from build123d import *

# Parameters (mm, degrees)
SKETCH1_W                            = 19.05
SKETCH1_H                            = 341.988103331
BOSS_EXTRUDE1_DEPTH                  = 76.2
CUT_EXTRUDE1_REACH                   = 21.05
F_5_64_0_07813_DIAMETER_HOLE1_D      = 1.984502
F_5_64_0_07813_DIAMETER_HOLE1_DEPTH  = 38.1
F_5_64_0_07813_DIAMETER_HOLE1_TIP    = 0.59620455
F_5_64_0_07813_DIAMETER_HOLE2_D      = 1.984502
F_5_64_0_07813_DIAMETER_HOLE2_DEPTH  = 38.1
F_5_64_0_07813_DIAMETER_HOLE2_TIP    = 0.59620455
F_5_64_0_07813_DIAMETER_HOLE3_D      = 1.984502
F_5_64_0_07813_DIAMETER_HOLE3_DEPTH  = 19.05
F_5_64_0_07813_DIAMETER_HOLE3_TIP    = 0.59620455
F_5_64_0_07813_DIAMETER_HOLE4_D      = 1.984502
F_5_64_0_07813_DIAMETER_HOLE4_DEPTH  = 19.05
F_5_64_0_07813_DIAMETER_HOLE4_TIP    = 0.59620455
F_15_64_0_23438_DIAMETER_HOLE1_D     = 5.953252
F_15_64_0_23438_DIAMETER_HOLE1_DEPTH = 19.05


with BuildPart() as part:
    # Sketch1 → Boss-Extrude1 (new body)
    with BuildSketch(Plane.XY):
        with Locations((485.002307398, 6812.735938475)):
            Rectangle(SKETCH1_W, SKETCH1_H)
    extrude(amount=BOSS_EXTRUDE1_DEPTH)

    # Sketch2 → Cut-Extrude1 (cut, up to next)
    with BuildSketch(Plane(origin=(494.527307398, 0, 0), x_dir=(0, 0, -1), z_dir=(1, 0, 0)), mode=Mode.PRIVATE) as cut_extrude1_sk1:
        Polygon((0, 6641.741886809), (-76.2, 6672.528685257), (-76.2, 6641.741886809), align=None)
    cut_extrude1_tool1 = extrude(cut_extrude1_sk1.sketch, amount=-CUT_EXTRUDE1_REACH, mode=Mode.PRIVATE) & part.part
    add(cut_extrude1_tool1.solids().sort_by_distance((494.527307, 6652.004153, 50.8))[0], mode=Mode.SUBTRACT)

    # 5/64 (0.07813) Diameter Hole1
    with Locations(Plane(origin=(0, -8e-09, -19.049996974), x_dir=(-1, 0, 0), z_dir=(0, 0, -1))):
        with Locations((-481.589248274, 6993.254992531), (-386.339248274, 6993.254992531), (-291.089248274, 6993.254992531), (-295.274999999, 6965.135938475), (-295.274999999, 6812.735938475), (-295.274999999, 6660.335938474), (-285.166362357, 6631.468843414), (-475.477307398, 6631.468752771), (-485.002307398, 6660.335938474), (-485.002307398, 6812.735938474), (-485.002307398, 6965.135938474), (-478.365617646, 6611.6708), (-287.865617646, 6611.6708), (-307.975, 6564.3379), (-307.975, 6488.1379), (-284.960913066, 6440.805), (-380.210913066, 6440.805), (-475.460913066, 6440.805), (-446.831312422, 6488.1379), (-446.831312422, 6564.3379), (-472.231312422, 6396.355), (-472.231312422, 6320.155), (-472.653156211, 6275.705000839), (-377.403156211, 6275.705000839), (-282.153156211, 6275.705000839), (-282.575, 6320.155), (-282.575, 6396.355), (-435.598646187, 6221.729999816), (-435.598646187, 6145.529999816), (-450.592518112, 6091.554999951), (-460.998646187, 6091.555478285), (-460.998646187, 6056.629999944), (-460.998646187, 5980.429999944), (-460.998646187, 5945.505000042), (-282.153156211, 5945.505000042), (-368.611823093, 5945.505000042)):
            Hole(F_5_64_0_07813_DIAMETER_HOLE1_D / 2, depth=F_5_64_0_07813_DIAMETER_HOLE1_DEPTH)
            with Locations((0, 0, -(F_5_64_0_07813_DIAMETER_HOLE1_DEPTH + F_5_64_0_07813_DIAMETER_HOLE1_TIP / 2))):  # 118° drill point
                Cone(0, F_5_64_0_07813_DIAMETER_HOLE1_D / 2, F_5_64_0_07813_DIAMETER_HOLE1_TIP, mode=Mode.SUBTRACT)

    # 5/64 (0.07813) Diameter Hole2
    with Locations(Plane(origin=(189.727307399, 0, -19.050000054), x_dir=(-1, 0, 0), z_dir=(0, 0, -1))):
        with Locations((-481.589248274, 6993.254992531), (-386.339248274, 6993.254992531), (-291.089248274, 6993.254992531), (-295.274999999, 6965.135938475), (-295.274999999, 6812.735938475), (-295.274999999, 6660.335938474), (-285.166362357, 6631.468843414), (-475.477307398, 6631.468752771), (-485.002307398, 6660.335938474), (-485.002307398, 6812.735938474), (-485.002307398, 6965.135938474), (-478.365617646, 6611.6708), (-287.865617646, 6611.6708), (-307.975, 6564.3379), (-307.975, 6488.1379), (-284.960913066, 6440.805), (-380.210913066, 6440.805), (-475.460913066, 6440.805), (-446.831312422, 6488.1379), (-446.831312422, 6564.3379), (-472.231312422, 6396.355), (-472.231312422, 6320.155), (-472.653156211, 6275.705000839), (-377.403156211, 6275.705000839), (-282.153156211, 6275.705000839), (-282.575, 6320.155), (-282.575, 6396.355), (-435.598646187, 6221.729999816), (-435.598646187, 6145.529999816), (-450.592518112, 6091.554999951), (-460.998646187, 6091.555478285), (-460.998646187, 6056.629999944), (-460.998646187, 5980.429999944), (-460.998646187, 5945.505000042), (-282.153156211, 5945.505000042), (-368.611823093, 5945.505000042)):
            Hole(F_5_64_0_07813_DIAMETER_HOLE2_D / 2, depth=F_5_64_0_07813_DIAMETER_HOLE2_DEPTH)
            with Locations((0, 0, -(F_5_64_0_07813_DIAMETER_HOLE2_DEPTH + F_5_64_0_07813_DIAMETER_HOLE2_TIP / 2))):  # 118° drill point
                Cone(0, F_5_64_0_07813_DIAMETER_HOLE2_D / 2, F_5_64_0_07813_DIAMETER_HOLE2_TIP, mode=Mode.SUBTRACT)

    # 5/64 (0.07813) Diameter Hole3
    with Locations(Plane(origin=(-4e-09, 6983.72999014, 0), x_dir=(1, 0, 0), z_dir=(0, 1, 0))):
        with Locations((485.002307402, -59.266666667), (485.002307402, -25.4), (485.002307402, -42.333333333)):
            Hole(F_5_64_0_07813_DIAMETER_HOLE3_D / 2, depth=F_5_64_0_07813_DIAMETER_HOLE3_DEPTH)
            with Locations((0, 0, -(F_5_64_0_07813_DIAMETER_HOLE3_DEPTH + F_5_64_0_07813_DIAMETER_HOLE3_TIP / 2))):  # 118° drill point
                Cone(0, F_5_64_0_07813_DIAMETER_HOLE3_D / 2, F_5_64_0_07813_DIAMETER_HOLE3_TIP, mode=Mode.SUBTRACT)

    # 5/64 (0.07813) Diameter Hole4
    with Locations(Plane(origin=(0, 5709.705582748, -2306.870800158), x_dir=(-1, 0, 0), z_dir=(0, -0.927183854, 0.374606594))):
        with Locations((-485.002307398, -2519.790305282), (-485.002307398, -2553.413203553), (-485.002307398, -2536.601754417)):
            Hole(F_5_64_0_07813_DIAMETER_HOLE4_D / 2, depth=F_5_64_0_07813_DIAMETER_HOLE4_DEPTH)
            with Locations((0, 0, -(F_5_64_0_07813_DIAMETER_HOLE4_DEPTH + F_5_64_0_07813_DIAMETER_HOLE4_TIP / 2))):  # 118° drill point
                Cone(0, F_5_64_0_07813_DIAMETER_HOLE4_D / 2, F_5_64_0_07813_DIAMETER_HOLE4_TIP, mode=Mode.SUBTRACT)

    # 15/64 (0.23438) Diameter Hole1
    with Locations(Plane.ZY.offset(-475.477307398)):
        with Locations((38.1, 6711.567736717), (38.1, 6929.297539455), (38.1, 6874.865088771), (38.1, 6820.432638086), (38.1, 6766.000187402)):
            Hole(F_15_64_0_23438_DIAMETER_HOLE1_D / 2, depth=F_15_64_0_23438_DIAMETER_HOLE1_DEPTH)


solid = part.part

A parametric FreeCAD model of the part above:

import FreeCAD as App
import Part
import Sketcher
Q = App.Units.Quantity

doc = App.newDocument("Part")
params = doc.addObject("Spreadsheet::Sheet", "Params")
for row, (alias, value) in enumerate([
    ("sketch1_width", "0.75 in"),
    ("pad1_length", "3 in"),
    ("sketch2_height", "3 in"),
    ("hole_diameter", "1.984502 mm"),
    ("hole_depth", "1.5 in"),
    ("hole2_diameter", "1.984502 mm"),
    ("hole2_depth", "1.5 in"),
    ("hole3_diameter", "1.984502 mm"),
    ("hole3_depth", "0.75 in"),
    ("hole4_diameter", "1.984502 mm"),
    ("hole4_depth", "0.75 in"),
    ("hole5_diameter", "5.953252 mm"),
    ("hole5_depth", "0.75 in"),
], start=1):
    params.set(f"A{row}", alias)
    params.set(f"B{row}", "=" + value)
    params.setAlias(f"B{row}", alias)

body = doc.addObject("PartDesign::Body", "Body")

sketch1 = body.newObject("Sketcher::SketchObject", "Sketch")
sketch1.AttachmentSupport = (doc.getObject("XY_Plane"), [""])
sketch1.MapMode = "FlatFace"
sketch1.addGeometry(Part.LineSegment(App.Vector(475, 6984, 0), App.Vector(475, 6642, 0)), False)
sketch1.addGeometry(Part.LineSegment(App.Vector(475, 6642, 0), App.Vector(495, 6642, 0)), False)
sketch1.addGeometry(Part.LineSegment(App.Vector(495, 6642, 0), App.Vector(495, 6984, 0)), False)
sketch1.addGeometry(Part.LineSegment(App.Vector(495, 6984, 0), App.Vector(475, 6984, 0)), False)
sketch1.addConstraint(Sketcher.Constraint("Coincident", 0, 2, 1, 1))
sketch1.addConstraint(Sketcher.Constraint("Coincident", 1, 2, 2, 1))
sketch1.addConstraint(Sketcher.Constraint("Coincident", 2, 2, 3, 1))
sketch1.addConstraint(Sketcher.Constraint("Coincident", 3, 2, 0, 1))
sketch1.addConstraint(Sketcher.Constraint("Vertical", 0))
sketch1.addConstraint(Sketcher.Constraint("Horizontal", 1))
sketch1.addConstraint(Sketcher.Constraint("Vertical", 2))
sketch1.addConstraint(Sketcher.Constraint("Horizontal", 3))
sketch1.addConstraint(Sketcher.Constraint("DistanceX", 1, 1, 1, 2, Q("0.75 in")))
sketch1.addConstraint(Sketcher.Constraint("DistanceY", 0, 2, 0, 1, 341.988103))
sketch1.addConstraint(Sketcher.Constraint("DistanceY", -1, 1, 2, 2, 6983.72999))
sketch1.addConstraint(Sketcher.Constraint("DistanceX", -1, 1, 0, 2, 475.477307))
sketch1.setExpression("Constraints[8]", "Params.sketch1_width")
pad1 = body.newObject("PartDesign::Pad", "Pad")
pad1.Profile = sketch1
pad1.setExpression("Length", "Params.pad1_length")

sketch2 = body.newObject("Sketcher::SketchObject", "Sketch001")
sketch2.AttachmentSupport = (doc.getObject("YZ_Plane"), [""])
sketch2.MapMode = "FlatFace"
sketch2.AttachmentOffset = App.Placement(App.Vector(0, 0, 494.527307), App.Rotation())
sketch2.addGeometry(Part.LineSegment(App.Vector(6642, 0, 0), App.Vector(6673, 76, 0)), False)
sketch2.addGeometry(Part.LineSegment(App.Vector(6673, 76, 0), App.Vector(6642, 76, 0)), False)
sketch2.addGeometry(Part.LineSegment(App.Vector(6642, 76, 0), App.Vector(6642, 0, 0)), False)
sketch2.addConstraint(Sketcher.Constraint("Coincident", 0, 2, 1, 1))
sketch2.addConstraint(Sketcher.Constraint("Coincident", 1, 2, 2, 1))
sketch2.addConstraint(Sketcher.Constraint("Coincident", 2, 2, 0, 1))
sketch2.addConstraint(Sketcher.Constraint("Horizontal", 1))
sketch2.addConstraint(Sketcher.Constraint("Vertical", 2))
sketch2.addConstraint(Sketcher.Constraint("PointOnObject", 2, 2, -1))
sketch2.addConstraint(Sketcher.Constraint("DistanceY", 2, 2, 2, 1, Q("3 in")))
sketch2.addConstraint(Sketcher.Constraint("Angle", 0, Q("68 deg")))
sketch2.addConstraint(Sketcher.Constraint("DistanceX", -1, 1, 0, 2, 6672.528685))
sketch2.setExpression("Constraints[6]", "Params.sketch2_height")
pocket1 = body.newObject("PartDesign::Pocket", "Pocket")
pocket1.Profile = sketch2
pocket1.Type = "UpToFirst"

sketch3 = body.newObject("Sketcher::SketchObject", "Sketch002")
sketch3.AttachmentSupport = (doc.getObject("XY_Plane"), [""])
sketch3.MapMode = "FlatFace"
sketch3.AttachmentOffset = App.Placement(App.Vector(0, 0, -0.7499999 * 25.4), App.Rotation())
sketch3.addGeometry(Part.Circle(App.Vector(481.6, 6993.3, 0), App.Vector(0, 0, 1), 1), False)
sketch3.addGeometry(Part.Circle(App.Vector(386.3, 6993.3, 0), App.Vector(0, 0, 1), 1), False)
sketch3.addGeometry(Part.Circle(App.Vector(291.1, 6993.3, 0), App.Vector(0, 0, 1), 1), False)
sketch3.addGeometry(Part.Circle(App.Vector(295.3, 6965.1, 0), App.Vector(0, 0, 1), 1), False)
sketch3.addGeometry(Part.Circle(App.Vector(295.3, 6812.7, 0), App.Vector(0, 0, 1), 1), False)
sketch3.addGeometry(Part.Circle(App.Vector(295.3, 6660.3, 0), App.Vector(0, 0, 1), 1), False)
sketch3.addGeometry(Part.Circle(App.Vector(285.2, 6631.5, 0), App.Vector(0, 0, 1), 1), False)
sketch3.addGeometry(Part.Circle(App.Vector(475.5, 6631.5, 0), App.Vector(0, 0, 1), 1), False)
sketch3.addGeometry(Part.Circle(App.Vector(485, 6660.3, 0), App.Vector(0, 0, 1), 1), False)
sketch3.addGeometry(Part.Circle(App.Vector(485, 6812.7, 0), App.Vector(0, 0, 1), 1), False)
sketch3.addGeometry(Part.Circle(App.Vector(485, 6965.1, 0), App.Vector(0, 0, 1), 1), False)
sketch3.addGeometry(Part.Circle(App.Vector(478.4, 6611.7, 0), App.Vector(0, 0, 1), 1), False)
sketch3.addGeometry(Part.Circle(App.Vector(287.9, 6611.7, 0), App.Vector(0, 0, 1), 1), False)
sketch3.addGeometry(Part.Circle(App.Vector(308, 6564.3, 0), App.Vector(0, 0, 1), 1), False)
sketch3.addGeometry(Part.Circle(App.Vector(308, 6488.1, 0), App.Vector(0, 0, 1), 1), False)
sketch3.addGeometry(Part.Circle(App.Vector(285, 6440.8, 0), App.Vector(0, 0, 1), 1), False)
sketch3.addGeometry(Part.Circle(App.Vector(380.2, 6440.8, 0), App.Vector(0, 0, 1), 1), False)
sketch3.addGeometry(Part.Circle(App.Vector(475.5, 6440.8, 0), App.Vector(0, 0, 1), 1), False)
sketch3.addGeometry(Part.Circle(App.Vector(446.8, 6488.1, 0), App.Vector(0, 0, 1), 1), False)
sketch3.addGeometry(Part.Circle(App.Vector(446.8, 6564.3, 0), App.Vector(0, 0, 1), 1), False)
sketch3.addGeometry(Part.Circle(App.Vector(472.2, 6396.4, 0), App.Vector(0, 0, 1), 1), False)
sketch3.addGeometry(Part.Circle(App.Vector(472.2, 6320.2, 0), App.Vector(0, 0, 1), 1), False)
sketch3.addGeometry(Part.Circle(App.Vector(472.7, 6275.7, 0), App.Vector(0, 0, 1), 1), False)
sketch3.addGeometry(Part.Circle(App.Vector(377.4, 6275.7, 0), App.Vector(0, 0, 1), 1), False)
sketch3.addGeometry(Part.Circle(App.Vector(282.2, 6275.7, 0), App.Vector(0, 0, 1), 1), False)
sketch3.addGeometry(Part.Circle(App.Vector(282.6, 6320.2, 0), App.Vector(0, 0, 1), 1), False)
sketch3.addGeometry(Part.Circle(App.Vector(282.6, 6396.4, 0), App.Vector(0, 0, 1), 1), False)
sketch3.addGeometry(Part.Circle(App.Vector(435.6, 6221.7, 0), App.Vector(0, 0, 1), 1), False)
sketch3.addGeometry(Part.Circle(App.Vector(435.6, 6145.5, 0), App.Vector(0, 0, 1), 1), False)
sketch3.addGeometry(Part.Circle(App.Vector(450.6, 6091.6, 0), App.Vector(0, 0, 1), 1), False)
sketch3.addGeometry(Part.Circle(App.Vector(461, 6091.6, 0), App.Vector(0, 0, 1), 1), False)
sketch3.addGeometry(Part.Circle(App.Vector(461, 6056.6, 0), App.Vector(0, 0, 1), 1), False)
sketch3.addGeometry(Part.Circle(App.Vector(461, 5980.4, 0), App.Vector(0, 0, 1), 1), False)
sketch3.addGeometry(Part.Circle(App.Vector(461, 5945.5, 0), App.Vector(0, 0, 1), 1), False)
sketch3.addGeometry(Part.Circle(App.Vector(282.2, 5945.5, 0), App.Vector(0, 0, 1), 1), False)
sketch3.addGeometry(Part.Circle(App.Vector(368.6, 5945.5, 0), App.Vector(0, 0, 1), 1), False)
sketch3.addConstraint(Sketcher.Constraint("Equal", 0, 1))
sketch3.addConstraint(Sketcher.Constraint("Equal", 1, 2))
sketch3.addConstraint(Sketcher.Constraint("Equal", 2, 3))
sketch3.addConstraint(Sketcher.Constraint("Equal", 3, 4))
sketch3.addConstraint(Sketcher.Constraint("Equal", 4, 5))
sketch3.addConstraint(Sketcher.Constraint("Equal", 5, 6))
sketch3.addConstraint(Sketcher.Constraint("Equal", 6, 7))
sketch3.addConstraint(Sketcher.Constraint("Equal", 7, 8))
sketch3.addConstraint(Sketcher.Constraint("Equal", 8, 9))
sketch3.addConstraint(Sketcher.Constraint("Equal", 9, 10))
sketch3.addConstraint(Sketcher.Constraint("Equal", 10, 11))
sketch3.addConstraint(Sketcher.Constraint("Equal", 11, 12))
sketch3.addConstraint(Sketcher.Constraint("Equal", 12, 13))
sketch3.addConstraint(Sketcher.Constraint("Equal", 13, 14))
sketch3.addConstraint(Sketcher.Constraint("Equal", 14, 15))
sketch3.addConstraint(Sketcher.Constraint("Equal", 15, 16))
sketch3.addConstraint(Sketcher.Constraint("Equal", 16, 17))
sketch3.addConstraint(Sketcher.Constraint("Equal", 17, 18))
sketch3.addConstraint(Sketcher.Constraint("Equal", 18, 19))
sketch3.addConstraint(Sketcher.Constraint("Equal", 19, 20))
sketch3.addConstraint(Sketcher.Constraint("Equal", 20, 21))
sketch3.addConstraint(Sketcher.Constraint("Equal", 21, 22))
sketch3.addConstraint(Sketcher.Constraint("Equal", 22, 23))
sketch3.addConstraint(Sketcher.Constraint("Equal", 23, 24))
sketch3.addConstraint(Sketcher.Constraint("Equal", 24, 25))
sketch3.addConstraint(Sketcher.Constraint("Equal", 25, 26))
sketch3.addConstraint(Sketcher.Constraint("Equal", 26, 27))
sketch3.addConstraint(Sketcher.Constraint("Equal", 27, 28))
sketch3.addConstraint(Sketcher.Constraint("Equal", 28, 29))
sketch3.addConstraint(Sketcher.Constraint("Equal", 29, 30))
sketch3.addConstraint(Sketcher.Constraint("Equal", 30, 31))
sketch3.addConstraint(Sketcher.Constraint("Equal", 31, 32))
sketch3.addConstraint(Sketcher.Constraint("Equal", 32, 33))
sketch3.addConstraint(Sketcher.Constraint("Equal", 33, 34))
sketch3.addConstraint(Sketcher.Constraint("Equal", 34, 35))
sketch3.addConstraint(Sketcher.Constraint("Horizontal", 0, 3, 1, 3))
sketch3.addConstraint(Sketcher.Constraint("Horizontal", 1, 3, 2, 3))
sketch3.addConstraint(Sketcher.Constraint("Horizontal", 5, 3, 8, 3))
sketch3.addConstraint(Sketcher.Constraint("Horizontal", 4, 3, 9, 3))
sketch3.addConstraint(Sketcher.Constraint("Horizontal", 3, 3, 10, 3))
sketch3.addConstraint(Sketcher.Constraint("Horizontal", 11, 3, 12, 3))
sketch3.addConstraint(Sketcher.Constraint("Horizontal", 15, 3, 16, 3))
sketch3.addConstraint(Sketcher.Constraint("Horizontal", 16, 3, 17, 3))
sketch3.addConstraint(Sketcher.Constraint("Horizontal", 14, 3, 18, 3))
sketch3.addConstraint(Sketcher.Constraint("Horizontal", 13, 3, 19, 3))
sketch3.addConstraint(Sketcher.Constraint("Horizontal", 22, 3, 23, 3))
sketch3.addConstraint(Sketcher.Constraint("Horizontal", 23, 3, 24, 3))
sketch3.addConstraint(Sketcher.Constraint("Horizontal", 21, 3, 25, 3))
sketch3.addConstraint(Sketcher.Constraint("Horizontal", 20, 3, 26, 3))
sketch3.addConstraint(Sketcher.Constraint("Horizontal", 33, 3, 34, 3))
sketch3.addConstraint(Sketcher.Constraint("Horizontal", 34, 3, 35, 3))
sketch3.addConstraint(Sketcher.Constraint("Vertical", 3, 3, 4, 3))
sketch3.addConstraint(Sketcher.Constraint("Vertical", 4, 3, 5, 3))
sketch3.addConstraint(Sketcher.Constraint("Vertical", 8, 3, 9, 3))
sketch3.addConstraint(Sketcher.Constraint("Vertical", 9, 3, 10, 3))
sketch3.addConstraint(Sketcher.Constraint("Vertical", 13, 3, 14, 3))
sketch3.addConstraint(Sketcher.Constraint("Vertical", 18, 3, 19, 3))
sketch3.addConstraint(Sketcher.Constraint("Vertical", 20, 3, 21, 3))
sketch3.addConstraint(Sketcher.Constraint("Vertical", 25, 3, 26, 3))
sketch3.addConstraint(Sketcher.Constraint("Vertical", 27, 3, 28, 3))
sketch3.addConstraint(Sketcher.Constraint("Vertical", 30, 3, 31, 3))
sketch3.addConstraint(Sketcher.Constraint("Vertical", 31, 3, 32, 3))
sketch3.addConstraint(Sketcher.Constraint("Vertical", 32, 3, 33, 3))
sketch3.addConstraint(Sketcher.Constraint("Vertical", 24, 3, 34, 3))
sketch3.addConstraint(Sketcher.Constraint("DistanceY", 4, 3, 3, 3, Q("6 in")))
sketch3.addConstraint(Sketcher.Constraint("DistanceY", 5, 3, 4, 3, Q("6 in")))
sketch3.addConstraint(Sketcher.Constraint("DistanceY", 14, 3, 13, 3, Q("3 in")))
sketch3.addConstraint(Sketcher.Constraint("DistanceX", 18, 3, 20, 3, Q("1 in")))
sketch3.addConstraint(Sketcher.Constraint("DistanceY", 21, 3, 20, 3, Q("3 in")))
sketch3.addConstraint(Sketcher.Constraint("DistanceX", 25, 3, 14, 3, Q("1 in")))
sketch3.addConstraint(Sketcher.Constraint("DistanceY", 28, 3, 27, 3, Q("3 in")))
sketch3.addConstraint(Sketcher.Constraint("DistanceY", 29, 3, 21, 3, Q("9 in")))
sketch3.addConstraint(Sketcher.Constraint("DistanceX", 28, 3, 30, 3, Q("1 in")))
sketch3.addConstraint(Sketcher.Constraint("DistanceY", 32, 3, 31, 3, Q("3 in")))
sketch3.addConstraint(Sketcher.Constraint("DistanceX", 2, 3, 0, 3, Q("7.5 in")))
sketch3.addConstraint(Sketcher.Constraint("DistanceX", 12, 3, 11, 3, Q("7.5 in")))
sketch3.addConstraint(Sketcher.Constraint("DistanceX", 5, 3, 13, 3, Q("0.5 in")))
sketch3.addConstraint(Sketcher.Constraint("DistanceX", 15, 3, 17, 3, Q("7.5 in")))
sketch3.addConstraint(Sketcher.Constraint("DistanceY", 22, 3, 17, 3, Q("6.5 in")))
sketch3.addConstraint(Sketcher.Constraint("DistanceX", 24, 3, 22, 3, Q("7.5 in")))
sketch3.addConstraint(Sketcher.Constraint("DistanceY", 31, 3, 28, 3, Q("3.5 in")))
sketch3.addConstraint(Sketcher.Constraint("DistanceY", -1, 1, 27, 3, Q("244.95 in")))
sketch3.addConstraint(Sketcher.Constraint("DistanceX", 1, 3, 0, 3, Q("3.75 in")))
sketch3.addConstraint(Sketcher.Constraint("DistanceX", 15, 3, 16, 3, Q("3.75 in")))
sketch3.addConstraint(Sketcher.Constraint("DistanceY", 20, 3, 17, 3, Q("1.75 in")))
sketch3.addConstraint(Sketcher.Constraint("DistanceX", 23, 3, 22, 3, Q("3.75 in")))
sketch3.addConstraint(Sketcher.Constraint("DistanceY", 33, 3, 29, 3, Q("5.75 in")))
sketch3.addConstraint(Sketcher.Constraint("DistanceX", -1, 1, 3, 3, Q("11.625 in")))
sketch3.addConstraint(Sketcher.Constraint("DistanceY", -1, 1, 11, 3, Q("260.302 in")))
sketch3.addConstraint(Sketcher.Constraint("DistanceY", -1, 1, 15, 3, Q("253.575 in")))
sketch3.addConstraint(Sketcher.Constraint("DistanceX", 7, 3, 8, 3, Q("0.375 in")))
sketch3.addConstraint(Sketcher.Constraint("Diameter", 0, 1.984502))
sketch3.addConstraint(Sketcher.Constraint("DistanceY", -1, 1, 13, 3, Q("258.4385 in")))
sketch3.addConstraint(Sketcher.Constraint("DistanceY", 6, 3, 5, 3, Q("1.1364998 in")))
sketch3.addConstraint(Sketcher.Constraint("DistanceX", 18, 3, 17, 3, 28.629601))
sketch3.addConstraint(Sketcher.Constraint("DistanceX", -1, 1, 0, 3, 481.589248))
sketch3.addConstraint(Sketcher.Constraint("DistanceY", -1, 1, 3, 3, 6965.135938))
sketch3.addConstraint(Sketcher.Constraint("DistanceX", -1, 1, 29, 3, 450.592518))
sketch3.addConstraint(Sketcher.Constraint("DistanceY", -1, 1, 30, 3, 6091.555478))
sketch3.addConstraint(Sketcher.Constraint("DistanceY", 6, 3, 2, 3, 361.786149))
sketch3.addConstraint(Sketcher.Constraint("DistanceX", 7, 3, 0, 3, 6.111941))
sketch3.addConstraint(Sketcher.Constraint("DistanceY", 7, 3, 0, 3, 361.78624))
sketch3.addConstraint(Sketcher.Constraint("DistanceX", 7, 3, 11, 3, 2.88831))
sketch3.addConstraint(Sketcher.Constraint("DistanceX", 15, 3, 6, 3, 0.205449))
sketch3.addConstraint(Sketcher.Constraint("DistanceX", 27, 3, 22, 3, 37.05451))
sketch3.addConstraint(Sketcher.Constraint("DistanceX", 28, 3, 29, 3, 14.993872))
sketch3.addConstraint(Sketcher.Constraint("DistanceX", -1, 1, 6, 3, 285.166362))
sketch3.addConstraint(Sketcher.Constraint("DistanceX", -1, 1, 35, 3, 368.611823))
doc.recompute()
hole = body.newObject("PartDesign::Hole", "Hole")
hole.Profile = sketch3
hole.ThreadType = "None"
hole.setExpression("Diameter", "Params.hole_diameter")
hole.DepthType = "Dimension"
hole.setExpression("Depth", "Params.hole_depth")
hole.DrillPoint = "Angled"
hole.DrillPointAngle = 118
hole.Reversed = True

sketch4 = body.newObject("Sketcher::SketchObject", "Sketch003")
sketch4.AttachmentSupport = (doc.getObject("XY_Plane"), [""])
sketch4.MapMode = "FlatFace"
sketch4.AttachmentOffset = App.Placement(App.Vector(0, 0, -0.75 * 25.4), App.Rotation())
sketch4.addGeometry(Part.Circle(App.Vector(671.3, 6993.3, 0), App.Vector(0, 0, 1), 1), False)
sketch4.addGeometry(Part.Circle(App.Vector(576.1, 6993.3, 0), App.Vector(0, 0, 1), 1), False)
sketch4.addGeometry(Part.Circle(App.Vector(480.8, 6993.3, 0), App.Vector(0, 0, 1), 1), False)
sketch4.addGeometry(Part.Circle(App.Vector(485, 6965.1, 0), App.Vector(0, 0, 1), 1), False)
sketch4.addGeometry(Part.Circle(App.Vector(485, 6812.7, 0), App.Vector(0, 0, 1), 1), False)
sketch4.addGeometry(Part.Circle(App.Vector(485, 6660.3, 0), App.Vector(0, 0, 1), 1), False)
sketch4.addGeometry(Part.Circle(App.Vector(474.9, 6631.5, 0), App.Vector(0, 0, 1), 1), False)
sketch4.addGeometry(Part.Circle(App.Vector(665.2, 6631.5, 0), App.Vector(0, 0, 1), 1), False)
sketch4.addGeometry(Part.Circle(App.Vector(674.7, 6660.3, 0), App.Vector(0, 0, 1), 1), False)
sketch4.addGeometry(Part.Circle(App.Vector(674.7, 6812.7, 0), App.Vector(0, 0, 1), 1), False)
sketch4.addGeometry(Part.Circle(App.Vector(674.7, 6965.1, 0), App.Vector(0, 0, 1), 1), False)
sketch4.addGeometry(Part.Circle(App.Vector(668.1, 6611.7, 0), App.Vector(0, 0, 1), 1), False)
sketch4.addGeometry(Part.Circle(App.Vector(477.6, 6611.7, 0), App.Vector(0, 0, 1), 1), False)
sketch4.addGeometry(Part.Circle(App.Vector(497.7, 6564.3, 0), App.Vector(0, 0, 1), 1), False)
sketch4.addGeometry(Part.Circle(App.Vector(497.7, 6488.1, 0), App.Vector(0, 0, 1), 1), False)
sketch4.addGeometry(Part.Circle(App.Vector(474.7, 6440.8, 0), App.Vector(0, 0, 1), 1), False)
sketch4.addGeometry(Part.Circle(App.Vector(569.9, 6440.8, 0), App.Vector(0, 0, 1), 1), False)
sketch4.addGeometry(Part.Circle(App.Vector(665.2, 6440.8, 0), App.Vector(0, 0, 1), 1), False)
sketch4.addGeometry(Part.Circle(App.Vector(636.6, 6488.1, 0), App.Vector(0, 0, 1), 1), False)
sketch4.addGeometry(Part.Circle(App.Vector(636.6, 6564.3, 0), App.Vector(0, 0, 1), 1), False)
sketch4.addGeometry(Part.Circle(App.Vector(662, 6396.4, 0), App.Vector(0, 0, 1), 1), False)
sketch4.addGeometry(Part.Circle(App.Vector(662, 6320.2, 0), App.Vector(0, 0, 1), 1), False)
sketch4.addGeometry(Part.Circle(App.Vector(662.4, 6275.7, 0), App.Vector(0, 0, 1), 1), False)
sketch4.addGeometry(Part.Circle(App.Vector(567.1, 6275.7, 0), App.Vector(0, 0, 1), 1), False)
sketch4.addGeometry(Part.Circle(App.Vector(471.9, 6275.7, 0), App.Vector(0, 0, 1), 1), False)
sketch4.addGeometry(Part.Circle(App.Vector(472.3, 6320.2, 0), App.Vector(0, 0, 1), 1), False)
sketch4.addGeometry(Part.Circle(App.Vector(472.3, 6396.4, 0), App.Vector(0, 0, 1), 1), False)
sketch4.addGeometry(Part.Circle(App.Vector(625.3, 6221.7, 0), App.Vector(0, 0, 1), 1), False)
sketch4.addGeometry(Part.Circle(App.Vector(625.3, 6145.5, 0), App.Vector(0, 0, 1), 1), False)
sketch4.addGeometry(Part.Circle(App.Vector(640.3, 6091.6, 0), App.Vector(0, 0, 1), 1), False)
sketch4.addGeometry(Part.Circle(App.Vector(650.7, 6091.6, 0), App.Vector(0, 0, 1), 1), False)
sketch4.addGeometry(Part.Circle(App.Vector(650.7, 6056.6, 0), App.Vector(0, 0, 1), 1), False)
sketch4.addGeometry(Part.Circle(App.Vector(650.7, 5980.4, 0), App.Vector(0, 0, 1), 1), False)
sketch4.addGeometry(Part.Circle(App.Vector(650.7, 5945.5, 0), App.Vector(0, 0, 1), 1), False)
sketch4.addGeometry(Part.Circle(App.Vector(471.9, 5945.5, 0), App.Vector(0, 0, 1), 1), False)
sketch4.addGeometry(Part.Circle(App.Vector(558.3, 5945.5, 0), App.Vector(0, 0, 1), 1), False)
sketch4.addConstraint(Sketcher.Constraint("Equal", 0, 1))
sketch4.addConstraint(Sketcher.Constraint("Equal", 1, 2))
sketch4.addConstraint(Sketcher.Constraint("Equal", 2, 3))
sketch4.addConstraint(Sketcher.Constraint("Equal", 3, 4))
sketch4.addConstraint(Sketcher.Constraint("Equal", 4, 5))
sketch4.addConstraint(Sketcher.Constraint("Equal", 5, 6))
sketch4.addConstraint(Sketcher.Constraint("Equal", 6, 7))
sketch4.addConstraint(Sketcher.Constraint("Equal", 7, 8))
sketch4.addConstraint(Sketcher.Constraint("Equal", 8, 9))
sketch4.addConstraint(Sketcher.Constraint("Equal", 9, 10))
sketch4.addConstraint(Sketcher.Constraint("Equal", 10, 11))
sketch4.addConstraint(Sketcher.Constraint("Equal", 11, 12))
sketch4.addConstraint(Sketcher.Constraint("Equal", 12, 13))
sketch4.addConstraint(Sketcher.Constraint("Equal", 13, 14))
sketch4.addConstraint(Sketcher.Constraint("Equal", 14, 15))
sketch4.addConstraint(Sketcher.Constraint("Equal", 15, 16))
sketch4.addConstraint(Sketcher.Constraint("Equal", 16, 17))
sketch4.addConstraint(Sketcher.Constraint("Equal", 17, 18))
sketch4.addConstraint(Sketcher.Constraint("Equal", 18, 19))
sketch4.addConstraint(Sketcher.Constraint("Equal", 19, 20))
sketch4.addConstraint(Sketcher.Constraint("Equal", 20, 21))
sketch4.addConstraint(Sketcher.Constraint("Equal", 21, 22))
sketch4.addConstraint(Sketcher.Constraint("Equal", 22, 23))
sketch4.addConstraint(Sketcher.Constraint("Equal", 23, 24))
sketch4.addConstraint(Sketcher.Constraint("Equal", 24, 25))
sketch4.addConstraint(Sketcher.Constraint("Equal", 25, 26))
sketch4.addConstraint(Sketcher.Constraint("Equal", 26, 27))
sketch4.addConstraint(Sketcher.Constraint("Equal", 27, 28))
sketch4.addConstraint(Sketcher.Constraint("Equal", 28, 29))
sketch4.addConstraint(Sketcher.Constraint("Equal", 29, 30))
sketch4.addConstraint(Sketcher.Constraint("Equal", 30, 31))
sketch4.addConstraint(Sketcher.Constraint("Equal", 31, 32))
sketch4.addConstraint(Sketcher.Constraint("Equal", 32, 33))
sketch4.addConstraint(Sketcher.Constraint("Equal", 33, 34))
sketch4.addConstraint(Sketcher.Constraint("Equal", 34, 35))
sketch4.addConstraint(Sketcher.Constraint("Horizontal", 0, 3, 1, 3))
sketch4.addConstraint(Sketcher.Constraint("Horizontal", 1, 3, 2, 3))
sketch4.addConstraint(Sketcher.Constraint("Horizontal", 5, 3, 8, 3))
sketch4.addConstraint(Sketcher.Constraint("Horizontal", 4, 3, 9, 3))
sketch4.addConstraint(Sketcher.Constraint("Horizontal", 3, 3, 10, 3))
sketch4.addConstraint(Sketcher.Constraint("Horizontal", 11, 3, 12, 3))
sketch4.addConstraint(Sketcher.Constraint("Horizontal", 15, 3, 16, 3))
sketch4.addConstraint(Sketcher.Constraint("Horizontal", 16, 3, 17, 3))
sketch4.addConstraint(Sketcher.Constraint("Horizontal", 14, 3, 18, 3))
sketch4.addConstraint(Sketcher.Constraint("Horizontal", 13, 3, 19, 3))
sketch4.addConstraint(Sketcher.Constraint("Horizontal", 22, 3, 23, 3))
sketch4.addConstraint(Sketcher.Constraint("Horizontal", 23, 3, 24, 3))
sketch4.addConstraint(Sketcher.Constraint("Horizontal", 21, 3, 25, 3))
sketch4.addConstraint(Sketcher.Constraint("Horizontal", 20, 3, 26, 3))
sketch4.addConstraint(Sketcher.Constraint("Horizontal", 33, 3, 34, 3))
sketch4.addConstraint(Sketcher.Constraint("Horizontal", 34, 3, 35, 3))
sketch4.addConstraint(Sketcher.Constraint("Vertical", 3, 3, 4, 3))
sketch4.addConstraint(Sketcher.Constraint("Vertical", 4, 3, 5, 3))
sketch4.addConstraint(Sketcher.Constraint("Vertical", 8, 3, 9, 3))
sketch4.addConstraint(Sketcher.Constraint("Vertical", 9, 3, 10, 3))
sketch4.addConstraint(Sketcher.Constraint("Vertical", 13, 3, 14, 3))
sketch4.addConstraint(Sketcher.Constraint("Vertical", 18, 3, 19, 3))
sketch4.addConstraint(Sketcher.Constraint("Vertical", 20, 3, 21, 3))
sketch4.addConstraint(Sketcher.Constraint("Vertical", 25, 3, 26, 3))
sketch4.addConstraint(Sketcher.Constraint("Vertical", 27, 3, 28, 3))
sketch4.addConstraint(Sketcher.Constraint("Vertical", 30, 3, 31, 3))
sketch4.addConstraint(Sketcher.Constraint("Vertical", 31, 3, 32, 3))
sketch4.addConstraint(Sketcher.Constraint("Vertical", 32, 3, 33, 3))
sketch4.addConstraint(Sketcher.Constraint("Vertical", 24, 3, 34, 3))
sketch4.addConstraint(Sketcher.Constraint("DistanceY", 4, 3, 3, 3, Q("6 in")))
sketch4.addConstraint(Sketcher.Constraint("DistanceY", 5, 3, 4, 3, Q("6 in")))
sketch4.addConstraint(Sketcher.Constraint("DistanceY", 14, 3, 13, 3, Q("3 in")))
sketch4.addConstraint(Sketcher.Constraint("DistanceX", 18, 3, 20, 3, Q("1 in")))
sketch4.addConstraint(Sketcher.Constraint("DistanceY", 21, 3, 20, 3, Q("3 in")))
sketch4.addConstraint(Sketcher.Constraint("DistanceX", 25, 3, 14, 3, Q("1 in")))
sketch4.addConstraint(Sketcher.Constraint("DistanceY", 28, 3, 27, 3, Q("3 in")))
sketch4.addConstraint(Sketcher.Constraint("DistanceY", 29, 3, 21, 3, Q("9 in")))
sketch4.addConstraint(Sketcher.Constraint("DistanceX", 28, 3, 30, 3, Q("1 in")))
sketch4.addConstraint(Sketcher.Constraint("DistanceY", 32, 3, 31, 3, Q("3 in")))
sketch4.addConstraint(Sketcher.Constraint("DistanceX", 2, 3, 0, 3, Q("7.5 in")))
sketch4.addConstraint(Sketcher.Constraint("DistanceX", 12, 3, 11, 3, Q("7.5 in")))
sketch4.addConstraint(Sketcher.Constraint("DistanceX", 5, 3, 13, 3, Q("0.5 in")))
sketch4.addConstraint(Sketcher.Constraint("DistanceX", 15, 3, 17, 3, Q("7.5 in")))
sketch4.addConstraint(Sketcher.Constraint("DistanceY", 22, 3, 17, 3, Q("6.5 in")))
sketch4.addConstraint(Sketcher.Constraint("DistanceX", 24, 3, 22, 3, Q("7.5 in")))
sketch4.addConstraint(Sketcher.Constraint("DistanceY", 31, 3, 28, 3, Q("3.5 in")))
sketch4.addConstraint(Sketcher.Constraint("DistanceY", -1, 1, 27, 3, Q("244.95 in")))
sketch4.addConstraint(Sketcher.Constraint("DistanceX", 1, 3, 0, 3, Q("3.75 in")))
sketch4.addConstraint(Sketcher.Constraint("DistanceX", 15, 3, 16, 3, Q("3.75 in")))
sketch4.addConstraint(Sketcher.Constraint("DistanceY", 20, 3, 17, 3, Q("1.75 in")))
sketch4.addConstraint(Sketcher.Constraint("DistanceX", 23, 3, 22, 3, Q("3.75 in")))
sketch4.addConstraint(Sketcher.Constraint("DistanceY", 33, 3, 29, 3, Q("5.75 in")))
sketch4.addConstraint(Sketcher.Constraint("DistanceY", -1, 1, 11, 3, Q("260.302 in")))
sketch4.addConstraint(Sketcher.Constraint("DistanceY", -1, 1, 15, 3, Q("253.575 in")))
sketch4.addConstraint(Sketcher.Constraint("DistanceX", 7, 3, 8, 3, Q("0.375 in")))
sketch4.addConstraint(Sketcher.Constraint("Diameter", 0, 1.984502))
sketch4.addConstraint(Sketcher.Constraint("DistanceY", -1, 1, 13, 3, Q("258.4385 in")))
sketch4.addConstraint(Sketcher.Constraint("DistanceY", 6, 3, 5, 3, Q("1.1364998 in")))
sketch4.addConstraint(Sketcher.Constraint("DistanceX", 18, 3, 17, 3, 28.629601))
sketch4.addConstraint(Sketcher.Constraint("DistanceY", -1, 1, 3, 3, 6965.135938))
sketch4.addConstraint(Sketcher.Constraint("DistanceX", -1, 1, 6, 3, 474.89367))
sketch4.addConstraint(Sketcher.Constraint("DistanceX", -1, 1, 15, 3, 474.68822))
sketch4.addConstraint(Sketcher.Constraint("DistanceY", -1, 1, 30, 3, 6091.555478))
sketch4.addConstraint(Sketcher.Constraint("DistanceX", -1, 1, 35, 3, 558.33913))
sketch4.addConstraint(Sketcher.Constraint("DistanceX", 2, 3, 3, 3, 4.185752))
sketch4.addConstraint(Sketcher.Constraint("DistanceY", 6, 3, 2, 3, 361.786149))
sketch4.addConstraint(Sketcher.Constraint("DistanceX", 7, 3, 0, 3, 6.111941))
sketch4.addConstraint(Sketcher.Constraint("DistanceY", 7, 3, 0, 3, 361.78624))
sketch4.addConstraint(Sketcher.Constraint("DistanceX", 7, 3, 11, 3, 2.88831))
sketch4.addConstraint(Sketcher.Constraint("DistanceX", 27, 3, 22, 3, 37.05451))
sketch4.addConstraint(Sketcher.Constraint("DistanceX", 28, 3, 29, 3, 14.993872))
sketch4.addConstraint(Sketcher.Constraint("DistanceX", -1, 1, 0, 3, 671.316556))
sketch4.addConstraint(Sketcher.Constraint("DistanceX", -1, 1, 22, 3, 662.380464))
doc.recompute()
hole2 = body.newObject("PartDesign::Hole", "Hole001")
hole2.Profile = sketch4
hole2.ThreadType = "None"
hole2.setExpression("Diameter", "Params.hole2_diameter")
hole2.DepthType = "Dimension"
hole2.setExpression("Depth", "Params.hole2_depth")
hole2.DrillPoint = "Angled"
hole2.DrillPointAngle = 118
hole2.Reversed = True

sketch5 = body.newObject("Sketcher::SketchObject", "Sketch004")
sketch5.AttachmentSupport = (doc.getObject("XZ_Plane"), [""])
sketch5.MapMode = "FlatFace"
sketch5.AttachmentOffset = App.Placement(App.Vector(0, 0, -6983.72999), App.Rotation())
sketch5.addGeometry(Part.Circle(App.Vector(485, 59.3, 0), App.Vector(0, 0, 1), 1), False)
sketch5.addGeometry(Part.Circle(App.Vector(485, 25.4, 0), App.Vector(0, 0, 1), 1), False)
sketch5.addGeometry(Part.Circle(App.Vector(485, 42.3, 0), App.Vector(0, 0, 1), 1), False)
sketch5.addConstraint(Sketcher.Constraint("Equal", 0, 1))
sketch5.addConstraint(Sketcher.Constraint("Equal", 1, 2))
sketch5.addConstraint(Sketcher.Constraint("Vertical", 0, 3, 1, 3))
sketch5.addConstraint(Sketcher.Constraint("Vertical", 1, 3, 2, 3))
sketch5.addConstraint(Sketcher.Constraint("DistanceY", -1, 1, 1, 3, Q("1 in")))
sketch5.addConstraint(Sketcher.Constraint("Diameter", 0, 1.984502))
sketch5.addConstraint(Sketcher.Constraint("DistanceX", -1, 1, 0, 3, 485.002307))
sketch5.addConstraint(Sketcher.Constraint("DistanceY", -1, 1, 0, 3, 59.266667))
sketch5.addConstraint(Sketcher.Constraint("DistanceY", -1, 1, 2, 3, 42.333333))
doc.recompute()
hole3 = body.newObject("PartDesign::Hole", "Hole002")
hole3.Profile = sketch5
hole3.ThreadType = "None"
hole3.setExpression("Diameter", "Params.hole3_diameter")
hole3.DepthType = "Dimension"
hole3.setExpression("Depth", "Params.hole3_depth")
hole3.DrillPoint = "Angled"
hole3.DrillPointAngle = 118
hole3.Reversed = True

sketch6 = body.newObject("Sketcher::SketchObject", "Sketch005")
sketch6.Placement = App.Placement(App.Vector(0, 5709.705582, -2306.870802), App.Rotation(App.Vector(-1, 0, 0), App.Vector(0, -0.374606594, -0.927183854), App.Vector(0, -0.927183854, 0.374606594), "ZXY"))
sketch6.addGeometry(Part.Circle(App.Vector(-485, -2519.8, 0), App.Vector(0, 0, 1), 1), False)
sketch6.addGeometry(Part.Circle(App.Vector(-485, -2553.4, 0), App.Vector(0, 0, 1), 1), False)
sketch6.addGeometry(Part.Circle(App.Vector(-485, -2536.6, 0), App.Vector(0, 0, 1), 1), False)
sketch6.addConstraint(Sketcher.Constraint("Equal", 0, 1))
sketch6.addConstraint(Sketcher.Constraint("Equal", 1, 2))
sketch6.addConstraint(Sketcher.Constraint("Vertical", 0, 3, 1, 3))
sketch6.addConstraint(Sketcher.Constraint("Vertical", 1, 3, 2, 3))
sketch6.addConstraint(Sketcher.Constraint("Diameter", 0, 1.984502))
sketch6.addConstraint(Sketcher.Constraint("DistanceY", 1, 3, 0, 3, 33.622898))
sketch6.addConstraint(Sketcher.Constraint("DistanceY", 2, 3, 0, 3, 16.811449))
sketch6.addConstraint(Sketcher.Constraint("DistanceX", 0, 3, -1, 1, 485.002307))
sketch6.addConstraint(Sketcher.Constraint("DistanceY", 0, 3, -1, 1, 2519.790306))
doc.recompute()
hole4 = body.newObject("PartDesign::Hole", "Hole003")
hole4.Profile = sketch6
hole4.ThreadType = "None"
hole4.setExpression("Diameter", "Params.hole4_diameter")
hole4.DepthType = "Dimension"
hole4.setExpression("Depth", "Params.hole4_depth")
hole4.DrillPoint = "Angled"
hole4.DrillPointAngle = 118

sketch7 = body.newObject("Sketcher::SketchObject", "Sketch006")
sketch7.AttachmentSupport = (doc.getObject("YZ_Plane"), [""])
sketch7.MapMode = "FlatFace"
sketch7.AttachmentOffset = App.Placement(App.Vector(0, 0, 475.477307), App.Rotation())
sketch7.addGeometry(Part.Circle(App.Vector(6711.6, 38.1, 0), App.Vector(0, 0, 1), 3), False)
sketch7.addGeometry(Part.Circle(App.Vector(6929.3, 38.1, 0), App.Vector(0, 0, 1), 3), False)
sketch7.addGeometry(Part.Circle(App.Vector(6874.9, 38.1, 0), App.Vector(0, 0, 1), 3), False)
sketch7.addGeometry(Part.Circle(App.Vector(6820.4, 38.1, 0), App.Vector(0, 0, 1), 3), False)
sketch7.addGeometry(Part.Circle(App.Vector(6766, 38.1, 0), App.Vector(0, 0, 1), 3), False)
sketch7.addConstraint(Sketcher.Constraint("Equal", 0, 1))
sketch7.addConstraint(Sketcher.Constraint("Equal", 1, 2))
sketch7.addConstraint(Sketcher.Constraint("Equal", 2, 3))
sketch7.addConstraint(Sketcher.Constraint("Equal", 3, 4))
sketch7.addConstraint(Sketcher.Constraint("Horizontal", 0, 3, 1, 3))
sketch7.addConstraint(Sketcher.Constraint("Horizontal", 1, 3, 2, 3))
sketch7.addConstraint(Sketcher.Constraint("Horizontal", 2, 3, 3, 3))
sketch7.addConstraint(Sketcher.Constraint("Horizontal", 3, 3, 4, 3))
sketch7.addConstraint(Sketcher.Constraint("DistanceY", -1, 1, 0, 3, Q("1.5 in")))
sketch7.addConstraint(Sketcher.Constraint("Diameter", 0, 5.953252))
sketch7.addConstraint(Sketcher.Constraint("DistanceX", 0, 3, 3, 3, 108.864901))
sketch7.addConstraint(Sketcher.Constraint("DistanceX", 3, 3, 1, 3, 108.864901))
sketch7.addConstraint(Sketcher.Constraint("DistanceX", 4, 3, 2, 3, 108.864901))
sketch7.addConstraint(Sketcher.Constraint("DistanceX", -1, 1, 1, 3, 6929.297539))
sketch7.addConstraint(Sketcher.Constraint("DistanceX", -1, 1, 2, 3, 6874.865089))
doc.recompute()
hole5 = body.newObject("PartDesign::Hole", "Hole004")
hole5.Profile = sketch7
hole5.ThreadType = "None"
hole5.setExpression("Diameter", "Params.hole5_diameter")
hole5.DepthType = "Dimension"
hole5.setExpression("Depth", "Params.hole5_depth")
hole5.DrillPoint = "Flat"
hole5.Reversed = True

doc.recompute()
